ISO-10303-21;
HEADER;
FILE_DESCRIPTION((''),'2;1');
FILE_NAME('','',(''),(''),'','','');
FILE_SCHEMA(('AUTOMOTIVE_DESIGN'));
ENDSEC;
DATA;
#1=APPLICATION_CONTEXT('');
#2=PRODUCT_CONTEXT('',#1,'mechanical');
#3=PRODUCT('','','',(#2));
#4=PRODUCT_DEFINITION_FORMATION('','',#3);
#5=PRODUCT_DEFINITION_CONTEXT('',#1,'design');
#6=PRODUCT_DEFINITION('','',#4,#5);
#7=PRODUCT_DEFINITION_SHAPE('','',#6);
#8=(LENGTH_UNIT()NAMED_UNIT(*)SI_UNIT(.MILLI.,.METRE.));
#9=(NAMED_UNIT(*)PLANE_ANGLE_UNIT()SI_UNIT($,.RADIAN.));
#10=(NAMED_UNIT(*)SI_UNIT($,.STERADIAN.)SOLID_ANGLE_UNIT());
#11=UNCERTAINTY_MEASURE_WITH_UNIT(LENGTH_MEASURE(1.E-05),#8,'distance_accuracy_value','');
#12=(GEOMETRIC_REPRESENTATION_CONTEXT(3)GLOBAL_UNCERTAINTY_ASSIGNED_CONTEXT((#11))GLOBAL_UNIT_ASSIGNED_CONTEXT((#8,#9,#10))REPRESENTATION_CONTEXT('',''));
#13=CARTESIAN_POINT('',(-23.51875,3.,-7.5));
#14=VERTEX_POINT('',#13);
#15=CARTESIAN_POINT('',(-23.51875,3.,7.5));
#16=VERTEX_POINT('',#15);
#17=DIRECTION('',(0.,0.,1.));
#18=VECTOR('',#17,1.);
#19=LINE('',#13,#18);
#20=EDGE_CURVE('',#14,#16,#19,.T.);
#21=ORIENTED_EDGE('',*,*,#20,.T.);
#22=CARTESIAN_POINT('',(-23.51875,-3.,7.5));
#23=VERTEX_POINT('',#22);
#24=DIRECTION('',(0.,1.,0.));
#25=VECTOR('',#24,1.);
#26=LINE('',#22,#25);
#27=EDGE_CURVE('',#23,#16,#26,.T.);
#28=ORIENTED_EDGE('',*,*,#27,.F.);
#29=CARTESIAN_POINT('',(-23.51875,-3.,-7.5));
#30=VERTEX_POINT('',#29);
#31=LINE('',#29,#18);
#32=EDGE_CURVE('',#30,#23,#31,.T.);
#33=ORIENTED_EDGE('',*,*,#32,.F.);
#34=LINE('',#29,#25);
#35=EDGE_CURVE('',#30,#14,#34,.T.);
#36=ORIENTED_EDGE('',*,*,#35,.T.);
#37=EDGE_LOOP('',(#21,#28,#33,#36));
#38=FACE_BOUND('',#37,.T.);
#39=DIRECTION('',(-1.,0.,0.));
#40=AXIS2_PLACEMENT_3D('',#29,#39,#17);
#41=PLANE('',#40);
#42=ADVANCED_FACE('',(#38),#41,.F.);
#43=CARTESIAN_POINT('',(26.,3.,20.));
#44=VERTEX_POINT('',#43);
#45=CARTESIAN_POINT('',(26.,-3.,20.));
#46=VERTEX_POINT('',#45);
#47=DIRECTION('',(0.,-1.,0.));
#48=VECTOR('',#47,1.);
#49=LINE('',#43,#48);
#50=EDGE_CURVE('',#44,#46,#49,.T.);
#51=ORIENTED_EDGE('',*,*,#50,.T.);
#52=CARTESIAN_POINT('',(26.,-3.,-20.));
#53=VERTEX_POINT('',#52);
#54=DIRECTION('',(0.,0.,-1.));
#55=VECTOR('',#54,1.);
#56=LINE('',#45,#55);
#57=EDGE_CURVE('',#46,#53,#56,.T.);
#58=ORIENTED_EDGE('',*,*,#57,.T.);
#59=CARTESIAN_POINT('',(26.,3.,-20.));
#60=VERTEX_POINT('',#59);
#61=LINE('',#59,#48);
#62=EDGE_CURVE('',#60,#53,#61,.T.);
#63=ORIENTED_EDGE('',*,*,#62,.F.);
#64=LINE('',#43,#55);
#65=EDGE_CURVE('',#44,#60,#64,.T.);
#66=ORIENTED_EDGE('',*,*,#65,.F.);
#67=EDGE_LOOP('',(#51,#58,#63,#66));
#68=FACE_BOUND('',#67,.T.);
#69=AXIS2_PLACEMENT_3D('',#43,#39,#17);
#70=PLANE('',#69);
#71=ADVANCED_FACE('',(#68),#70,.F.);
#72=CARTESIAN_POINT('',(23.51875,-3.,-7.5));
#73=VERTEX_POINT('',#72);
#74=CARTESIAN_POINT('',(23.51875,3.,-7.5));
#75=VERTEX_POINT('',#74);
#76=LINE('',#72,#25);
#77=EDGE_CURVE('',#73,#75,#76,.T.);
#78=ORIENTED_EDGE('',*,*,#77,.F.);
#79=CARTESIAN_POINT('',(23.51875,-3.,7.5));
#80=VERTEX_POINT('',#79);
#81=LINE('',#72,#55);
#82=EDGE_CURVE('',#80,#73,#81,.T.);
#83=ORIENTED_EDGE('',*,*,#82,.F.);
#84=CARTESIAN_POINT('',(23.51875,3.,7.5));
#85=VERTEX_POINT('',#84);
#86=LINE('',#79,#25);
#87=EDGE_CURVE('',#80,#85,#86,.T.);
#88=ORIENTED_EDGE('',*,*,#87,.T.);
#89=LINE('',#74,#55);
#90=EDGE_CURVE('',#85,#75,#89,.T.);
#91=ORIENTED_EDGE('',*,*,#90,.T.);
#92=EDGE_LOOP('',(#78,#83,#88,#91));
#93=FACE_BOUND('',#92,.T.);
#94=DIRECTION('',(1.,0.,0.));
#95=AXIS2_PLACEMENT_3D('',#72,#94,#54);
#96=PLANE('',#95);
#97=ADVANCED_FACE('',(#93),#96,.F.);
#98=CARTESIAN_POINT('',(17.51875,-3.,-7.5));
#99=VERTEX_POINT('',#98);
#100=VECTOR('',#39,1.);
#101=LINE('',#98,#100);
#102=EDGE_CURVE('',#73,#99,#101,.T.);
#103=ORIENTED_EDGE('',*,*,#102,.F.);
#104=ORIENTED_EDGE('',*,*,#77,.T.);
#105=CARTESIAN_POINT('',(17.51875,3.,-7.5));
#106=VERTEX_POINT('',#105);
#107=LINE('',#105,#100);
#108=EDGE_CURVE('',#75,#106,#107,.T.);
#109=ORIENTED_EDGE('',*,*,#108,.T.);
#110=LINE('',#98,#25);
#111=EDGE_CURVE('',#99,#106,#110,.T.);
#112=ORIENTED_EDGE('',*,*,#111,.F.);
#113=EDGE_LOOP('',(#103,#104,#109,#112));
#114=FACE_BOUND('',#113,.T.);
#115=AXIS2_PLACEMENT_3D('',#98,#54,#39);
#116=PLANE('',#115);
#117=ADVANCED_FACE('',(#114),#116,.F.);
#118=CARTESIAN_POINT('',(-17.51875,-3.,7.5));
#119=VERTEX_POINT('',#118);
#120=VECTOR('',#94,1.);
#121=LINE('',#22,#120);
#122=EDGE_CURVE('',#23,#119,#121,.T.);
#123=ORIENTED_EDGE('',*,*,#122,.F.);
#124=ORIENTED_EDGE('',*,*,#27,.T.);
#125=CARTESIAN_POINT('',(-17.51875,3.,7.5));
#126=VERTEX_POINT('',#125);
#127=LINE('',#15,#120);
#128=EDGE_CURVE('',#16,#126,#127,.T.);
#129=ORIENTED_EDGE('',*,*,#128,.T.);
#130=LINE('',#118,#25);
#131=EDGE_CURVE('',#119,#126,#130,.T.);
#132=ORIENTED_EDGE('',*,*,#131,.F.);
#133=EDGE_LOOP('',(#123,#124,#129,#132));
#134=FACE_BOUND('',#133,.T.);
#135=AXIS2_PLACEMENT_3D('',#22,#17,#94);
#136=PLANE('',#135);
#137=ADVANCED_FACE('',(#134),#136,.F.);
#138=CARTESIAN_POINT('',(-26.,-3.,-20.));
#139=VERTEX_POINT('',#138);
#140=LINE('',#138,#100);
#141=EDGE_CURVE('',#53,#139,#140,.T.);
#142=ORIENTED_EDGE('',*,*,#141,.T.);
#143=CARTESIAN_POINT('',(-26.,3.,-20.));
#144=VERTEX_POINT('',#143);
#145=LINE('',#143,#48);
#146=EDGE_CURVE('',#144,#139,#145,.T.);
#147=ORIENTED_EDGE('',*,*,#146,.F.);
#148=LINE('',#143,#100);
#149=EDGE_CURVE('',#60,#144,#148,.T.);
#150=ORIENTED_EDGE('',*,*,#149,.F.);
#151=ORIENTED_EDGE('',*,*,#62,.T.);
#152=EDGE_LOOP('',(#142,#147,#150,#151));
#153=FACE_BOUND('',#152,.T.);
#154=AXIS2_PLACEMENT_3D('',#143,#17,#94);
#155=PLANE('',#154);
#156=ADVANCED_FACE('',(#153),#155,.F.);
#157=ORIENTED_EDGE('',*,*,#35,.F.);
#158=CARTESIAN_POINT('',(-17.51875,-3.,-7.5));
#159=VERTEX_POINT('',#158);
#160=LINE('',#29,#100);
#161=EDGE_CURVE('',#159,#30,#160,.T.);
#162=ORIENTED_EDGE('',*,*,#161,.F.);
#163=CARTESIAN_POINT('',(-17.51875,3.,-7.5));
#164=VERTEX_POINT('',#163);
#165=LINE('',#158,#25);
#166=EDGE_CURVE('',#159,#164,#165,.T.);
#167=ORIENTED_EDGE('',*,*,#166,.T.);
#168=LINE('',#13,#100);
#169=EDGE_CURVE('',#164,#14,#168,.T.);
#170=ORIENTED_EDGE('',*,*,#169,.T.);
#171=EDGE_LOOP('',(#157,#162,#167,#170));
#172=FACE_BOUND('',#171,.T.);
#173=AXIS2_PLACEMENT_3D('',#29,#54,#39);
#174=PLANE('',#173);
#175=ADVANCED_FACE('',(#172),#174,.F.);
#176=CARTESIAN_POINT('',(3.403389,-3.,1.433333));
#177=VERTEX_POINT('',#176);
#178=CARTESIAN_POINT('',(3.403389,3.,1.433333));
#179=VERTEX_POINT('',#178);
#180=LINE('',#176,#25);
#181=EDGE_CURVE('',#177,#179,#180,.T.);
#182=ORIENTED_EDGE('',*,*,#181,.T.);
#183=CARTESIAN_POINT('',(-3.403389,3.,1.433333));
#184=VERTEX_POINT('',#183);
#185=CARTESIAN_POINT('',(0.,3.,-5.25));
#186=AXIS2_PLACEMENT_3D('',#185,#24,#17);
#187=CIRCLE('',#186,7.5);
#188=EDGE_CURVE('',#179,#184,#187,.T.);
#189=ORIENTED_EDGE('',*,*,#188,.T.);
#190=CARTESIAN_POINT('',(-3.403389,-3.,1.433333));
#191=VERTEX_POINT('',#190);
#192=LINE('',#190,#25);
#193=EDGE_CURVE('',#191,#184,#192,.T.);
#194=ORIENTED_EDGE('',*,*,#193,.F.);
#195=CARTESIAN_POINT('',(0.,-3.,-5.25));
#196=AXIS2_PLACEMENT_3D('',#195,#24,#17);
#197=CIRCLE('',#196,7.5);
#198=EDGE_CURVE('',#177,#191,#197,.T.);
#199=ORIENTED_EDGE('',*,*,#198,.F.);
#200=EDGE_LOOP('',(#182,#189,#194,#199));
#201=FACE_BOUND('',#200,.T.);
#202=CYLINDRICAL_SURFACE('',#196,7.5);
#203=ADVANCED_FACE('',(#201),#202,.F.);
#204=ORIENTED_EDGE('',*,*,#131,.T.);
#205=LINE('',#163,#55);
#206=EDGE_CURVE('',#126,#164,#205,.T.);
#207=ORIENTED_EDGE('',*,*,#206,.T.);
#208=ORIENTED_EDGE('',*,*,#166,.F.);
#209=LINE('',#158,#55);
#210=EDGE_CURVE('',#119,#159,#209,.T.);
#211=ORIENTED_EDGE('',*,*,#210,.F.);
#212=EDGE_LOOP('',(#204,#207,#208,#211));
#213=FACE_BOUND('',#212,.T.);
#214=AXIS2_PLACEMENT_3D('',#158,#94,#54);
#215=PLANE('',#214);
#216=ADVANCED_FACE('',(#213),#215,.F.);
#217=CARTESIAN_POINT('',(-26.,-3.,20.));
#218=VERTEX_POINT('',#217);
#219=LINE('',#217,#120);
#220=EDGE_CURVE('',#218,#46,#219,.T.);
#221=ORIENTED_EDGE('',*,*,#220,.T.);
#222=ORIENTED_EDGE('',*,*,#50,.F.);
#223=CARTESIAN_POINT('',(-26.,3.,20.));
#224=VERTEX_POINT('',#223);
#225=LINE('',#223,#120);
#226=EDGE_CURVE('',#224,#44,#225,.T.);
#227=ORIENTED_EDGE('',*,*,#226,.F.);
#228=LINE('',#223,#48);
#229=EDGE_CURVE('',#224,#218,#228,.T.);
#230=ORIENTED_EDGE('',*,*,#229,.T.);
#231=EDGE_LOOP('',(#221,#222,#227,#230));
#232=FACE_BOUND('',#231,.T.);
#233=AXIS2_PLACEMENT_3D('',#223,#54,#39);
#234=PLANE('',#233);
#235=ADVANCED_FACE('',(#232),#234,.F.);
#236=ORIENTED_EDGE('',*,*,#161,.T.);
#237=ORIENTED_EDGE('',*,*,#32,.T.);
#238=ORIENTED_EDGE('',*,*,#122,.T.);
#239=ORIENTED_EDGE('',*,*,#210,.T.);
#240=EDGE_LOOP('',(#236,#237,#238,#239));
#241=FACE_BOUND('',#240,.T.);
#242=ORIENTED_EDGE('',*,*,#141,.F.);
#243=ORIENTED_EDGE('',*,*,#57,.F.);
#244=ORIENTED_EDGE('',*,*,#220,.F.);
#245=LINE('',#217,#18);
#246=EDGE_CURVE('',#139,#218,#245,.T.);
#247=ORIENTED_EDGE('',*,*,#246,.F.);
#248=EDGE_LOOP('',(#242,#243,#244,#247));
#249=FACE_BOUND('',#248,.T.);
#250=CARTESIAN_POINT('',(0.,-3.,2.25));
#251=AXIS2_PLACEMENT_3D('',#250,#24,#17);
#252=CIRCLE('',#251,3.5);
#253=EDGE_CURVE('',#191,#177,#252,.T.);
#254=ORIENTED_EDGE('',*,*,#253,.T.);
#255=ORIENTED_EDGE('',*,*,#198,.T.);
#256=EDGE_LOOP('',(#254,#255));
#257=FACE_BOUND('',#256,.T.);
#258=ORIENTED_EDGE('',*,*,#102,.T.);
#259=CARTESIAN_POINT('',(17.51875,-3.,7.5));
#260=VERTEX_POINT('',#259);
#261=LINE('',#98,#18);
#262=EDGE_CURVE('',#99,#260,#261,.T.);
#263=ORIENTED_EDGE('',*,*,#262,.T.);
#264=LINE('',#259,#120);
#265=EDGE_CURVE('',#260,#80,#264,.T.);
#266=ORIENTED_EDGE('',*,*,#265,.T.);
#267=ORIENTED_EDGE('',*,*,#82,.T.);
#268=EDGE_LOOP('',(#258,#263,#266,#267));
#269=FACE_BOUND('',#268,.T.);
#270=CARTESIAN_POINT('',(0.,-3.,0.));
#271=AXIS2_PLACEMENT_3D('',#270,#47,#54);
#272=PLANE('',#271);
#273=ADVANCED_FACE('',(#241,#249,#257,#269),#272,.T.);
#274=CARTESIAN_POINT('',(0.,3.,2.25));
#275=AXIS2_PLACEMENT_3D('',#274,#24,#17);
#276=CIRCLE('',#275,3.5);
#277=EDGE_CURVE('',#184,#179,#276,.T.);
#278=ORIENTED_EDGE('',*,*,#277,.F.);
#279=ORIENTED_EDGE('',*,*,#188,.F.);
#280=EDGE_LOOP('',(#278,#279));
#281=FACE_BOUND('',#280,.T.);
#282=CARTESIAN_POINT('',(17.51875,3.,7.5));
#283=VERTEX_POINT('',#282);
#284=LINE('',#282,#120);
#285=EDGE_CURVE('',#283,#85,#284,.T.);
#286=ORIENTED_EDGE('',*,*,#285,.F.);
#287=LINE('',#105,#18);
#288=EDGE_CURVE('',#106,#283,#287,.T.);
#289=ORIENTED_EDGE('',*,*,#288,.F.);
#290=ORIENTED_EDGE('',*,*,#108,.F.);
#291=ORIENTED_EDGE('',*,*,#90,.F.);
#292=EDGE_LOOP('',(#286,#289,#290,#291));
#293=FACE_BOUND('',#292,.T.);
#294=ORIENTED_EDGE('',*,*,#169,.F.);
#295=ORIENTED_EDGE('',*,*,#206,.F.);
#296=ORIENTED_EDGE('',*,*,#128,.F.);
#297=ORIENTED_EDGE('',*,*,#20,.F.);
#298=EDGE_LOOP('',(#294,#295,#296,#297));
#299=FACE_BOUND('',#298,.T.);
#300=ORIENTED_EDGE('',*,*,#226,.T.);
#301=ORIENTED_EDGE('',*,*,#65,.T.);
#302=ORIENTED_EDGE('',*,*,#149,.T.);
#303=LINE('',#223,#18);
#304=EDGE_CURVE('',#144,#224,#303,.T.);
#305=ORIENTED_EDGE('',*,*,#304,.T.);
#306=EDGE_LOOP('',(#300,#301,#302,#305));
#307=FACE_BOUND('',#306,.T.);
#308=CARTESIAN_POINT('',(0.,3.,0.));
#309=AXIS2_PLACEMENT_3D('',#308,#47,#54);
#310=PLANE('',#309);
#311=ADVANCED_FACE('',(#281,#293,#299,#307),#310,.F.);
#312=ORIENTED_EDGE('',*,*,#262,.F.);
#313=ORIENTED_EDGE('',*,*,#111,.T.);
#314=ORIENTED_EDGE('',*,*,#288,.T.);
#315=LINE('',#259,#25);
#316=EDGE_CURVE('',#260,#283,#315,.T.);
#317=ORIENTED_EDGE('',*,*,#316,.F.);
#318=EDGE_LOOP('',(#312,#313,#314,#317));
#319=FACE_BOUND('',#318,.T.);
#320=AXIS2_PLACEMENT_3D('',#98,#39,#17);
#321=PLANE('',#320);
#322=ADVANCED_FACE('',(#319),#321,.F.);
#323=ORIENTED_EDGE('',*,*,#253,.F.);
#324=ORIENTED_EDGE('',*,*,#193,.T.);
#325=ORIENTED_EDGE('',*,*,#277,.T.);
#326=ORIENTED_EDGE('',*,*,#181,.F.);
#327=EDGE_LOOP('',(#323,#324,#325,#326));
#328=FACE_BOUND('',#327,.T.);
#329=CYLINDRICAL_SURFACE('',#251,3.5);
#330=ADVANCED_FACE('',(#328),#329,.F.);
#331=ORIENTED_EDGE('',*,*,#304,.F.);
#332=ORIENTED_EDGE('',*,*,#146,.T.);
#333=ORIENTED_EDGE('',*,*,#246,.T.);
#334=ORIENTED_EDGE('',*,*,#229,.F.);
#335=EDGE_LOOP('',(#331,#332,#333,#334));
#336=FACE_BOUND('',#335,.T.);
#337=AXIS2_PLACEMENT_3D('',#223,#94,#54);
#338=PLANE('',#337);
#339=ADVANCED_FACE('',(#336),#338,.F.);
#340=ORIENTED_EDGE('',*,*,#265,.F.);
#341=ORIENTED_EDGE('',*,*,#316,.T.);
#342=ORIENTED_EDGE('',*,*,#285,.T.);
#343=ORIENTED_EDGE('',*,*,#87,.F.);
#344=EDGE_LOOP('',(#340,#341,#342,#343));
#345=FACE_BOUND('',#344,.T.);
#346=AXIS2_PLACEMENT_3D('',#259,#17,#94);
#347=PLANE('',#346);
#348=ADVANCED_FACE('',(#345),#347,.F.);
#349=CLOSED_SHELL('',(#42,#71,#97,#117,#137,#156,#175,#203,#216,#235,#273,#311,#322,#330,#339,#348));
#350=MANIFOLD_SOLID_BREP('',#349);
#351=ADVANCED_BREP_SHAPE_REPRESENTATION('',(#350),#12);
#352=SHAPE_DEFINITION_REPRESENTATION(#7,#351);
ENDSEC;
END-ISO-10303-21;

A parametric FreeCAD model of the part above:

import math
import FreeCAD as App
import Part
import Sketcher
Q = App.Units.Quantity


def add_polygon(sketch, points):
    """Adds a closed chain of lines whose ends are joined by coincident constraints."""
    first, n = sketch.GeometryCount, len(points)
    for a, b in zip(points, points[1:] + points[:1]):
        sketch.addGeometry(Part.LineSegment(App.Vector(*a, 0), App.Vector(*b, 0)), False)
    for i in range(n):
        sketch.addConstraint(Sketcher.Constraint("Coincident", first + i, 2, first + (i + 1) % n, 1))

doc = App.newDocument("Part")
body = doc.addObject("PartDesign::Body", "Body")

sketch1 = body.newObject("Sketcher::SketchObject", "Sketch")
sketch1.AttachmentSupport = (doc.getObject("XZ_Plane"), [""])
sketch1.MapMode = "FlatFace"
add_polygon(sketch1, [(-26, -20), (-26, 20), (26, 20), (26, -20)])
sketch1.addConstraint([
    Sketcher.Constraint("Vertical", 0),
    Sketcher.Constraint("Horizontal", 1),
    Sketcher.Constraint("Vertical", 2),
    Sketcher.Constraint("Horizontal", 3),
    Sketcher.Constraint("Symmetric", 0, 2, 2, 2, -1, 1),
    Sketcher.Constraint("DistanceX", 1, 1, 1, 2, Q("52 mm")),
    Sketcher.Constraint("DistanceY", 0, 1, 0, 2, Q("40 mm")),
])
pad1 = body.newObject("PartDesign::Pad", "Pad")
pad1.Profile = sketch1
pad1.Length = 6
pad1.Midplane = True

sketch2 = body.newObject("Sketcher::SketchObject", "Sketch001")
sketch2.AttachmentSupport = (doc.getObject("XZ_Plane"), [""])
sketch2.MapMode = "FlatFace"
sketch2.AttachmentOffset = App.Placement(App.Vector(0, 0, -3), App.Rotation())
add_polygon(sketch2, [(-24, -8), (-24, 8), (-18, 8), (-18, -8)])
add_polygon(sketch2, [(18, -8), (18, 8), (24, 8), (24, -8)])
sketch2.addConstraint([
    Sketcher.Constraint("Vertical", 0),
    Sketcher.Constraint("Horizontal", 1),
    Sketcher.Constraint("Vertical", 2),
    Sketcher.Constraint("Horizontal", 3),
    Sketcher.Constraint("Vertical", 4),
    Sketcher.Constraint("Horizontal", 5),
    Sketcher.Constraint("Vertical", 6),
    Sketcher.Constraint("Horizontal", 7),
    Sketcher.Constraint("Symmetric", 2, 2, 4, 2, -1, 1),
    Sketcher.Constraint("Symmetric", 0, 2, 6, 2, -1, 1),
    Sketcher.Constraint("Horizontal", 1, 2, 4, 2),
    Sketcher.Constraint("DistanceX", 1, 1, 1, 2, Q("6 mm")),
    Sketcher.Constraint("DistanceY", 0, 1, 0, 2, Q("15 mm")),
    Sketcher.Constraint("DistanceX", 1, 2, 4, 2, Q("35.0375 mm")),
])
pocket1 = body.newObject("PartDesign::Pocket", "Pocket")
pocket1.Profile = sketch2
pocket1.Type = "ThroughAll"
pocket1.Reversed = True

sketch3 = body.newObject("Sketcher::SketchObject", "Sketch002")
sketch3.AttachmentSupport = (doc.getObject("XZ_Plane"), [""])
sketch3.MapMode = "FlatFace"
sketch3.AttachmentOffset = App.Placement(App.Vector(0, 0, -3), App.Rotation())
sketch3.addGeometry([
    Part.ArcOfCircle(Part.Circle(App.Vector(0, -5.2, 0), App.Vector(0, 0, 1), 7.5), math.radians(117), math.radians(423)),
    Part.ArcOfCircle(Part.Circle(App.Vector(0, 2.2, 0), App.Vector(0, 0, 1), 3.5), math.radians(-13), math.radians(193)),
], False)
sketch3.addConstraint([
    Sketcher.Constraint("Coincident", 0, 1, 1, 2),
    Sketcher.Constraint("Coincident", 1, 1, 0, 2),
    Sketcher.Constraint("Symmetric", 0, 1, 1, 1, -2),
    Sketcher.Constraint("Radius", 0, Q("7.5 mm")),
    Sketcher.Constraint("Radius", 1, Q("3.5 mm")),
    Sketcher.Constraint("DistanceY", 0, 3, 1, 3, Q("7.5 mm")),
    Sketcher.Constraint("DistanceY", 0, 3, -1, 1, Q("5.25 mm")),
])
pocket2 = body.newObject("PartDesign::Pocket", "Pocket001")
pocket2.Profile = sketch3
pocket2.Type = "ThroughAll"
pocket2.Reversed = True

doc.recompute()
